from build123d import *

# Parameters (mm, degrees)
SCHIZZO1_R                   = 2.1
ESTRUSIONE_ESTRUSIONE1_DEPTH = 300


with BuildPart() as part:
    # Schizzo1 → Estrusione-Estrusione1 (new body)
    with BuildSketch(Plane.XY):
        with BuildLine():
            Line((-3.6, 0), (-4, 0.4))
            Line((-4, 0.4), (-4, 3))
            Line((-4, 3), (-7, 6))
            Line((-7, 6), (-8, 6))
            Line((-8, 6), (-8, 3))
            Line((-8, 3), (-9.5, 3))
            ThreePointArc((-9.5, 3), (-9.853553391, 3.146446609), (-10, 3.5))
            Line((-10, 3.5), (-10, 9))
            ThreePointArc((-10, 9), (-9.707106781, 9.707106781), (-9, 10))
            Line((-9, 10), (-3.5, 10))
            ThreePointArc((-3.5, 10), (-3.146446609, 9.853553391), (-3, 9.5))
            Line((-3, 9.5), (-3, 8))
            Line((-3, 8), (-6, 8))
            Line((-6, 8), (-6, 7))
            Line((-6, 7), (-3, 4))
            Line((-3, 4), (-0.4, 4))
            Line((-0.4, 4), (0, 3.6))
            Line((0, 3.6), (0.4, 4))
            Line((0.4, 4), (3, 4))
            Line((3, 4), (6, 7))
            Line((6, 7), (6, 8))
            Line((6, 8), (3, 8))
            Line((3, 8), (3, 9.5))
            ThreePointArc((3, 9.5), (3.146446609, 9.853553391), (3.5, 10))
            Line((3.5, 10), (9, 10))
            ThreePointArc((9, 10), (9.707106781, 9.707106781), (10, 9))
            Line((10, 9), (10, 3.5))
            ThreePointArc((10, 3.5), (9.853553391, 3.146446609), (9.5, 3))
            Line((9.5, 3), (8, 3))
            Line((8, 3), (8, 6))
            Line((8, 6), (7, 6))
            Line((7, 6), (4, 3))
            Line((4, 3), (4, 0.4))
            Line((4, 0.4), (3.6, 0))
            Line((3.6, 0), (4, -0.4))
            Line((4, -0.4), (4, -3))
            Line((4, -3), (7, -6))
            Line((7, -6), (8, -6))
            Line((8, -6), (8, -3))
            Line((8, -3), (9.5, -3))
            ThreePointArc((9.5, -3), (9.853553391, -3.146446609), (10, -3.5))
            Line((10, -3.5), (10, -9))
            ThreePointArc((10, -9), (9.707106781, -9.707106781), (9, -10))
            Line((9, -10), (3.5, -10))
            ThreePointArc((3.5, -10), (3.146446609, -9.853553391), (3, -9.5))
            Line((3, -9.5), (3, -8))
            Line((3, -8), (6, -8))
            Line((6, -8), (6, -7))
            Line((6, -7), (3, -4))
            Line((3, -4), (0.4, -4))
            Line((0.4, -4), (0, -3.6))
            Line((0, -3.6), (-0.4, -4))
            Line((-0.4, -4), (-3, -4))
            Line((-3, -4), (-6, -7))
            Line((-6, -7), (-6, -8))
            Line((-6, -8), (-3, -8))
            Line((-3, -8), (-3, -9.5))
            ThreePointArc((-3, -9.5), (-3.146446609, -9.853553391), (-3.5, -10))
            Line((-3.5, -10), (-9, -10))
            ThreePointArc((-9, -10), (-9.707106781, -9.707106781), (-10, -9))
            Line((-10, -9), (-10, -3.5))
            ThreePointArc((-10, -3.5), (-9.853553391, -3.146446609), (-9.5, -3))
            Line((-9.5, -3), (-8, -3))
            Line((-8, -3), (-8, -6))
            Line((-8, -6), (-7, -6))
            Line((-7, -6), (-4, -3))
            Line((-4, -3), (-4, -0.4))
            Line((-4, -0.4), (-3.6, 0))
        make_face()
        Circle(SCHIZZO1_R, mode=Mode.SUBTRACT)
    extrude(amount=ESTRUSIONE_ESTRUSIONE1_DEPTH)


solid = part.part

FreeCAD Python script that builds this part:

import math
import FreeCAD as App
import Part
import Sketcher

doc = App.newDocument("Part")
body = doc.addObject("PartDesign::Body", "Body")

sketch1 = body.newObject("Sketcher::SketchObject", "Sketch")
sketch1.AttachmentSupport = (doc.getObject("XY_Plane"), [""])
sketch1.MapMode = "FlatFace"
sketch1.addGeometry([
    Part.LineSegment(App.Vector(-4, 0.4, 0), App.Vector(-3.6, 0, 0)),
    Part.LineSegment(App.Vector(-3.6, 0, 0), App.Vector(-4, -0.4, 0)),
    Part.LineSegment(App.Vector(-4, -0.4, 0), App.Vector(-4, -3, 0)),
    Part.LineSegment(App.Vector(-4, -3, 0), App.Vector(-7, -6, 0)),
    Part.LineSegment(App.Vector(-7, -6, 0), App.Vector(-8, -6, 0)),
    Part.LineSegment(App.Vector(-8, -6, 0), App.Vector(-8, -3, 0)),
    Part.LineSegment(App.Vector(-8, -3, 0), App.Vector(-9.5, -3, 0)),
    Part.ArcOfCircle(Part.Circle(App.Vector(-9.5, -3.5, 0), App.Vector(0, 0, 1), 0.5), math.radians(90), math.radians(180)),
    Part.LineSegment(App.Vector(-10, -3.5, 0), App.Vector(-10, -9, 0)),
    Part.ArcOfCircle(Part.Circle(App.Vector(-9, -9, 0), App.Vector(0, 0, 1), 1), math.radians(-180), math.radians(-90)),
    Part.LineSegment(App.Vector(-9, -10, 0), App.Vector(-3.5, -10, 0)),
    Part.ArcOfCircle(Part.Circle(App.Vector(-3.5, -9.5, 0), App.Vector(0, 0, 1), 0.5), math.radians(-90), math.radians(0)),
    Part.LineSegment(App.Vector(-3, -9.5, 0), App.Vector(-3, -8, 0)),
    Part.LineSegment(App.Vector(-3, -8, 0), App.Vector(-6, -8, 0)),
    Part.LineSegment(App.Vector(-6, -8, 0), App.Vector(-6, -7, 0)),
    Part.LineSegment(App.Vector(-6, -7, 0), App.Vector(-3, -4, 0)),
    Part.LineSegment(App.Vector(-3, -4, 0), App.Vector(-0.4, -4, 0)),
    Part.LineSegment(App.Vector(-0.4, -4, 0), App.Vector(0, -3.6, 0)),
    Part.LineSegment(App.Vector(0, -3.6, 0), App.Vector(0.4, -4, 0)),
    Part.LineSegment(App.Vector(0.4, -4, 0), App.Vector(3, -4, 0)),
    Part.LineSegment(App.Vector(3, -4, 0), App.Vector(6, -7, 0)),
    Part.LineSegment(App.Vector(6, -7, 0), App.Vector(6, -8, 0)),
    Part.LineSegment(App.Vector(6, -8, 0), App.Vector(3, -8, 0)),
    Part.LineSegment(App.Vector(3, -8, 0), App.Vector(3, -9.5, 0)),
    Part.ArcOfCircle(Part.Circle(App.Vector(3.5, -9.5, 0), App.Vector(0, 0, 1), 0.5), math.radians(180), math.radians(270)),
    Part.LineSegment(App.Vector(3.5, -10, 0), App.Vector(9, -10, 0)),
    Part.ArcOfCircle(Part.Circle(App.Vector(9, -9, 0), App.Vector(0, 0, 1), 1), math.radians(-90), math.radians(0)),
    Part.LineSegment(App.Vector(10, -9, 0), App.Vector(10, -3.5, 0)),
    Part.ArcOfCircle(Part.Circle(App.Vector(9.5, -3.5, 0), App.Vector(0, 0, 1), 0.5), math.radians(0), math.radians(90)),
    Part.LineSegment(App.Vector(9.5, -3, 0), App.Vector(8, -3, 0)),
    Part.LineSegment(App.Vector(8, -3, 0), App.Vector(8, -6, 0)),
    Part.LineSegment(App.Vector(8, -6, 0), App.Vector(7, -6, 0)),
    Part.LineSegment(App.Vector(7, -6, 0), App.Vector(4, -3, 0)),
    Part.LineSegment(App.Vector(4, -3, 0), App.Vector(4, -0.4, 0)),
    Part.LineSegment(App.Vector(4, -0.4, 0), App.Vector(3.6, 0, 0)),
    Part.LineSegment(App.Vector(3.6, 0, 0), App.Vector(4, 0.4, 0)),
    Part.LineSegment(App.Vector(4, 0.4, 0), App.Vector(4, 3, 0)),
    Part.LineSegment(App.Vector(4, 3, 0), App.Vector(7, 6, 0)),
    Part.LineSegment(App.Vector(7, 6, 0), App.Vector(8, 6, 0)),
    Part.LineSegment(App.Vector(8, 6, 0), App.Vector(8, 3, 0)),
    Part.LineSegment(App.Vector(8, 3, 0), App.Vector(9.5, 3, 0)),
    Part.ArcOfCircle(Part.Circle(App.Vector(9.5, 3.5, 0), App.Vector(0, 0, 1), 0.5), math.radians(-90), math.radians(0)),
    Part.LineSegment(App.Vector(10, 3.5, 0), App.Vector(10, 9, 0)),
    Part.ArcOfCircle(Part.Circle(App.Vector(9, 9, 0), App.Vector(0, 0, 1), 1), math.radians(0), math.radians(90)),
    Part.LineSegment(App.Vector(9, 10, 0), App.Vector(3.5, 10, 0)),
    Part.ArcOfCircle(Part.Circle(App.Vector(3.5, 9.5, 0), App.Vector(0, 0, 1), 0.5), math.radians(90), math.radians(180)),
    Part.LineSegment(App.Vector(3, 9.5, 0), App.Vector(3, 8, 0)),
    Part.LineSegment(App.Vector(3, 8, 0), App.Vector(6, 8, 0)),
    Part.LineSegment(App.Vector(6, 8, 0), App.Vector(6, 7, 0)),
    Part.LineSegment(App.Vector(6, 7, 0), App.Vector(3, 4, 0)),
    Part.LineSegment(App.Vector(3, 4, 0), App.Vector(0.4, 4, 0)),
    Part.LineSegment(App.Vector(0.4, 4, 0), App.Vector(0, 3.6, 0)),
    Part.LineSegment(App.Vector(0, 3.6, 0), App.Vector(-0.4, 4, 0)),
    Part.LineSegment(App.Vector(-0.4, 4, 0), App.Vector(-3, 4, 0)),
    Part.LineSegment(App.Vector(-3, 4, 0), App.Vector(-6, 7, 0)),
    Part.LineSegment(App.Vector(-6, 7, 0), App.Vector(-6, 8, 0)),
    Part.LineSegment(App.Vector(-6, 8, 0), App.Vector(-3, 8, 0)),
    Part.LineSegment(App.Vector(-3, 8, 0), App.Vector(-3, 9.5, 0)),
    Part.ArcOfCircle(Part.Circle(App.Vector(-3.5, 9.5, 0), App.Vector(0, 0, 1), 0.5), math.radians(0), math.radians(90)),
    Part.LineSegment(App.Vector(-3.5, 10, 0), App.Vector(-9, 10, 0)),
    Part.ArcOfCircle(Part.Circle(App.Vector(-9, 9, 0), App.Vector(0, 0, 1), 1), math.radians(90), math.radians(180)),
    Part.LineSegment(App.Vector(-10, 9, 0), App.Vector(-10, 3.5, 0)),
    Part.ArcOfCircle(Part.Circle(App.Vector(-9.5, 3.5, 0), App.Vector(0, 0, 1), 0.5), math.radians(180), math.radians(270)),
    Part.LineSegment(App.Vector(-9.5, 3, 0), App.Vector(-8, 3, 0)),
    Part.LineSegment(App.Vector(-8, 3, 0), App.Vector(-8, 6, 0)),
    Part.LineSegment(App.Vector(-8, 6, 0), App.Vector(-7, 6, 0)),
    Part.LineSegment(App.Vector(-7, 6, 0), App.Vector(-4, 3, 0)),
    Part.LineSegment(App.Vector(-4, 3, 0), App.Vector(-4, 0.4, 0)),
    Part.Circle(App.Vector(0, 0, 0), App.Vector(0, 0, 1), 2.1),
], False)
sketch1.addConstraint([
    Sketcher.Constraint("Coincident", 0, 2, 1, 1),
    Sketcher.Constraint("Coincident", 1, 2, 2, 1),
    Sketcher.Constraint("Coincident", 2, 2, 3, 1),
    Sketcher.Constraint("Coincident", 3, 2, 4, 1),
    Sketcher.Constraint("Coincident", 4, 2, 5, 1),
    Sketcher.Constraint("Coincident", 5, 2, 6, 1),
    Sketcher.Constraint("Tangent", 6, 2, 7, 1),
    Sketcher.Constraint("Tangent", 7, 2, 8, 1),
    Sketcher.Constraint("Tangent", 8, 2, 9, 1),
    Sketcher.Constraint("Tangent", 9, 2, 10, 1),
    Sketcher.Constraint("Tangent", 10, 2, 11, 1),
    Sketcher.Constraint("Tangent", 11, 2, 12, 1),
    Sketcher.Constraint("Coincident", 12, 2, 13, 1),
    Sketcher.Constraint("Coincident", 13, 2, 14, 1),
    Sketcher.Constraint("Coincident", 14, 2, 15, 1),
    Sketcher.Constraint("Coincident", 15, 2, 16, 1),
    Sketcher.Constraint("Coincident", 16, 2, 17, 1),
    Sketcher.Constraint("Coincident", 17, 2, 18, 1),
    Sketcher.Constraint("Coincident", 18, 2, 19, 1),
    Sketcher.Constraint("Coincident", 19, 2, 20, 1),
    Sketcher.Constraint("Coincident", 20, 2, 21, 1),
    Sketcher.Constraint("Coincident", 21, 2, 22, 1),
    Sketcher.Constraint("Coincident", 22, 2, 23, 1),
    Sketcher.Constraint("Tangent", 23, 2, 24, 1),
    Sketcher.Constraint("Tangent", 24, 2, 25, 1),
    Sketcher.Constraint("Tangent", 25, 2, 26, 1),
    Sketcher.Constraint("Tangent", 26, 2, 27, 1),
    Sketcher.Constraint("Tangent", 27, 2, 28, 1),
    Sketcher.Constraint("Tangent", 28, 2, 29, 1),
    Sketcher.Constraint("Coincident", 29, 2, 30, 1),
    Sketcher.Constraint("Coincident", 30, 2, 31, 1),
    Sketcher.Constraint("Coincident", 31, 2, 32, 1),
    Sketcher.Constraint("Coincident", 32, 2, 33, 1),
    Sketcher.Constraint("Coincident", 33, 2, 34, 1),
    Sketcher.Constraint("Coincident", 34, 2, 35, 1),
    Sketcher.Constraint("Coincident", 35, 2, 36, 1),
    Sketcher.Constraint("Coincident", 36, 2, 37, 1),
    Sketcher.Constraint("Coincident", 37, 2, 38, 1),
    Sketcher.Constraint("Coincident", 38, 2, 39, 1),
    Sketcher.Constraint("Coincident", 39, 2, 40, 1),
    Sketcher.Constraint("Tangent", 40, 2, 41, 1),
    Sketcher.Constraint("Tangent", 41, 2, 42, 1),
    Sketcher.Constraint("Tangent", 42, 2, 43, 1),
    Sketcher.Constraint("Tangent", 43, 2, 44, 1),
    Sketcher.Constraint("Tangent", 44, 2, 45, 1),
    Sketcher.Constraint("Tangent", 45, 2, 46, 1),
    Sketcher.Constraint("Coincident", 46, 2, 47, 1),
    Sketcher.Constraint("Coincident", 47, 2, 48, 1),
    Sketcher.Constraint("Coincident", 48, 2, 49, 1),
    Sketcher.Constraint("Coincident", 49, 2, 50, 1),
    Sketcher.Constraint("Coincident", 50, 2, 51, 1),
    Sketcher.Constraint("Coincident", 51, 2, 52, 1),
    Sketcher.Constraint("Coincident", 52, 2, 53, 1),
    Sketcher.Constraint("Coincident", 53, 2, 54, 1),
    Sketcher.Constraint("Coincident", 54, 2, 55, 1),
    Sketcher.Constraint("Coincident", 55, 2, 56, 1),
    Sketcher.Constraint("Coincident", 56, 2, 57, 1),
    Sketcher.Constraint("Tangent", 57, 2, 58, 1),
    Sketcher.Constraint("Tangent", 58, 2, 59, 1),
    Sketcher.Constraint("Tangent", 59, 2, 60, 1),
    Sketcher.Constraint("Tangent", 60, 2, 61, 1),
    Sketcher.Constraint("Tangent", 61, 2, 62, 1),
    Sketcher.Constraint("Tangent", 62, 2, 63, 1),
    Sketcher.Constraint("Coincident", 63, 2, 64, 1),
    Sketcher.Constraint("Coincident", 64, 2, 65, 1),
    Sketcher.Constraint("Coincident", 65, 2, 66, 1),
    Sketcher.Constraint("Coincident", 66, 2, 67, 1),
    Sketcher.Constraint("Coincident", 67, 2, 0, 1),
    Sketcher.Constraint("Vertical", 2),
    Sketcher.Constraint("Horizontal", 4),
    Sketcher.Constraint("Vertical", 5),
    Sketcher.Constraint("Horizontal", 6),
    Sketcher.Constraint("Vertical", 8),
    Sketcher.Constraint("Horizontal", 10),
    Sketcher.Constraint("Vertical", 12),
    Sketcher.Constraint("Horizontal", 13),
    Sketcher.Constraint("Vertical", 14),
    Sketcher.Constraint("Horizontal", 16),
    Sketcher.Constraint("Horizontal", 19),
    Sketcher.Constraint("Vertical", 21),
    Sketcher.Constraint("Horizontal", 22),
    Sketcher.Constraint("Vertical", 23),
    Sketcher.Constraint("Horizontal", 25),
    Sketcher.Constraint("Vertical", 27),
    Sketcher.Constraint("Horizontal", 29),
    Sketcher.Constraint("Vertical", 30),
    Sketcher.Constraint("Horizontal", 31),
    Sketcher.Constraint("Vertical", 33),
    Sketcher.Constraint("Vertical", 36),
    Sketcher.Constraint("Horizontal", 38),
    Sketcher.Constraint("Vertical", 39),
    Sketcher.Constraint("Horizontal", 40),
    Sketcher.Constraint("Vertical", 42),
    Sketcher.Constraint("Horizontal", 44),
    Sketcher.Constraint("Vertical", 46),
    Sketcher.Constraint("Horizontal", 47),
    Sketcher.Constraint("Vertical", 48),
    Sketcher.Constraint("Horizontal", 50),
    Sketcher.Constraint("Horizontal", 53),
    Sketcher.Constraint("Vertical", 55),
    Sketcher.Constraint("Horizontal", 56),
    Sketcher.Constraint("Vertical", 57),
    Sketcher.Constraint("Horizontal", 59),
    Sketcher.Constraint("Vertical", 61),
    Sketcher.Constraint("Horizontal", 63),
    Sketcher.Constraint("Vertical", 64),
    Sketcher.Constraint("Horizontal", 65),
    Sketcher.Constraint("Vertical", 67),
    Sketcher.Constraint("Coincident", 68, 3, -1, 1),
    Sketcher.Constraint("Equal", 7, 11),
    Sketcher.Constraint("Equal", 11, 24),
    Sketcher.Constraint("Equal", 9, 26),
    Sketcher.Constraint("Equal", 24, 28),
    Sketcher.Constraint("Equal", 28, 41),
    Sketcher.Constraint("Equal", 26, 43),
    Sketcher.Constraint("Equal", 41, 45),
    Sketcher.Constraint("Equal", 45, 58),
    Sketcher.Constraint("Equal", 43, 60),
    Sketcher.Constraint("Equal", 58, 62),
    Sketcher.Constraint("Symmetric", 7, 3, 41, 3, -1, 1),
    Sketcher.Constraint("Symmetric", 11, 3, 45, 3, -1, 1),
    Sketcher.Constraint("Symmetric", 24, 3, 58, 3, -1, 1),
    Sketcher.Constraint("Symmetric", 28, 3, 62, 3, -1, 1),
    Sketcher.Constraint("Symmetric", 0, 2, 34, 2, -1, 1),
    Sketcher.Constraint("Symmetric", 1, 2, 35, 2, -1, 1),
    Sketcher.Constraint("Symmetric", 3, 2, 37, 2, -1, 1),
    Sketcher.Constraint("Symmetric", 13, 2, 47, 2, -1, 1),
    Sketcher.Constraint("Symmetric", 15, 2, 49, 2, -1, 1),
    Sketcher.Constraint("Symmetric", 17, 2, 51, 2, -1, 1),
    Sketcher.Constraint("Symmetric", 18, 2, 52, 2, -1, 1),
    Sketcher.Constraint("Symmetric", 20, 2, 54, 2, -1, 1),
    Sketcher.Constraint("Symmetric", 30, 2, 64, 2, -1, 1),
    Sketcher.Constraint("Symmetric", 32, 2, 66, 2, -1, 1),
    Sketcher.Constraint("Symmetric", 11, 3, 24, 3, -2),
    Sketcher.Constraint("Symmetric", 7, 3, 28, 3, -2),
    Sketcher.Constraint("Symmetric", 16, 2, 18, 2, -2),
    Sketcher.Constraint("Symmetric", 14, 2, 20, 2, -2),
    Sketcher.Constraint("Symmetric", 4, 2, 30, 2, -2),
    Sketcher.Constraint("Symmetric", 2, 2, 32, 2, -2),
    Sketcher.Constraint("PointOnObject", 0, 2, -1),
    Sketcher.Constraint("PointOnObject", 17, 2, -2),
    Sketcher.Constraint("Perpendicular", 0, 1),
    Sketcher.Constraint("Parallel", 1, 3),
    Sketcher.Constraint("Parallel", 3, 15),
    Sketcher.Constraint("Parallel", 15, 17),
    Sketcher.Constraint("Perpendicular", 17, 18),
    Sketcher.Constraint("Parallel", 18, 20),
    Sketcher.Constraint("Parallel", 20, 32),
    Sketcher.Constraint("Parallel", 32, 34),
    Sketcher.Constraint("Parallel", 35, 37),
    Sketcher.Constraint("Parallel", 37, 49),
    Sketcher.Constraint("Parallel", 49, 51),
    Sketcher.Constraint("Parallel", 52, 54),
    Sketcher.Constraint("Parallel", 54, 66),
    Sketcher.Constraint("Horizontal", 2, 2, 5, 2),
    Sketcher.Constraint("Horizontal", 13, 2, 21, 2),
    Sketcher.Constraint("Horizontal", 47, 2, 55, 2),
    Sketcher.Constraint("Vertical", 12, 2, 15, 2),
    Sketcher.Constraint("Vertical", 30, 2, 38, 2),
    Sketcher.Constraint("Equal", 53, 2),
    Sketcher.Constraint("Equal", 56, 5),
    Sketcher.Constraint("Equal", 59, 8),
    Sketcher.Constraint("Equal", 63, 12),
    Sketcher.Constraint("Equal", 65, 14),
    Sketcher.Constraint("Equal", 1, 17),
    Sketcher.Constraint("Radius", 9, 1.0),
    Sketcher.Constraint("Diameter", 68, 4.2),
    Sketcher.Constraint("Radius", 7, 0.5),
    Sketcher.Constraint("DistanceX", 4, 2, 4, 1, 1.0),
    Sketcher.Constraint("DistanceX", 13, 2, 13, 1, 3.0),
    Sketcher.Constraint("DistanceX", 6, 2, 6, 1, 1.5),
    Sketcher.Constraint("DistanceX", 10, 1, 10, 2, 5.5),
    Sketcher.Constraint("DistanceX", 16, 1, 16, 2, 2.6),
    Sketcher.Constraint("DistanceX", 9, 3, -1, 1, 9.0),
])
pad1 = body.newObject("PartDesign::Pad", "Pad")
pad1.Profile = sketch1
pad1.Length = 300

doc.recompute()
